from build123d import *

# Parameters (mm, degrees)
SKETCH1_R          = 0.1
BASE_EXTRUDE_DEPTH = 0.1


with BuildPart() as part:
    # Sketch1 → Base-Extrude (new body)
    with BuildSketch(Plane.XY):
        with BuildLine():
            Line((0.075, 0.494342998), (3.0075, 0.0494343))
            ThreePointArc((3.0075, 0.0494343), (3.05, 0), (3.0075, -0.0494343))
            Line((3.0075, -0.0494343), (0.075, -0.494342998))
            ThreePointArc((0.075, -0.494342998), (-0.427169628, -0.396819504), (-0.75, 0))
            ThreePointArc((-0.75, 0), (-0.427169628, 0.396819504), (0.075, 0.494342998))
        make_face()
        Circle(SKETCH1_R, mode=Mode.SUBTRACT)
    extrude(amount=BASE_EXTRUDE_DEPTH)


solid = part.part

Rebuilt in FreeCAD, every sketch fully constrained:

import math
import FreeCAD as App
import Part
import Sketcher

V = App.Vector

doc = App.newDocument("Part")
body = doc.addObject("PartDesign::Body", "Body")

sketch1 = body.newObject("Sketcher::SketchObject", "Sketch")
sketch1.AttachmentSupport = (doc.getObject("XY_Plane"), [""])
sketch1.MapMode = "FlatFace"
sketch1.addGeometry(Part.LineSegment(V(3.0075, 0.049434, 0), V(0.075, 0.494343, 0)), False)
sketch1.addGeometry(Part.ArcOfCircle(Part.Circle(V(-0.041675, -0.246526, 0), V(0, 0, 1), 0.75), math.radians(81.050369), math.radians(160.81002)), False)
sketch1.addGeometry(Part.ArcOfCircle(Part.Circle(V(-0.041675, 0.246526, 0), V(0, 0, 1), 0.75), math.radians(-160.81002), math.radians(-81.050369)), False)
sketch1.addGeometry(Part.LineSegment(V(0.075, -0.494343, 0), V(3.0075, -0.049434, 0)), False)
sketch1.addGeometry(Part.ArcOfCircle(Part.Circle(V(3, 0, 0), V(0, 0, 1), 0.05), math.radians(-81.373073), math.radians(81.373073)), False)
sketch1.addGeometry(Part.Circle(V(0, 0, 0), V(0, 0, 1), 0.1), False)
sketch1.addConstraint(Sketcher.Constraint("Coincident", 0, 2, 1, 1))
sketch1.addConstraint(Sketcher.Constraint("Coincident", 1, 2, 2, 1))
sketch1.addConstraint(Sketcher.Constraint("Coincident", 2, 2, 3, 1))
sketch1.addConstraint(Sketcher.Constraint("Tangent", 3, 2, 4, 1))
sketch1.addConstraint(Sketcher.Constraint("Tangent", 4, 2, 0, 1))
sketch1.addConstraint(Sketcher.Constraint("Coincident", 5, 3, -1, 1))
sketch1.addConstraint(Sketcher.Constraint("Equal", 1, 2))
sketch1.addConstraint(Sketcher.Constraint("Symmetric", 1, 3, 2, 3, -1))
sketch1.addConstraint(Sketcher.Constraint("Symmetric", 3, 2, 4, 2, -1))
sketch1.addConstraint(Sketcher.Constraint("Diameter", 5, 0.2))
sketch1.addConstraint(Sketcher.Constraint("Radius", 1, 0.75))
sketch1.addConstraint(Sketcher.Constraint("Radius", 4, 0.05))
sketch1.addConstraint(Sketcher.Constraint("DistanceX", -1, 1, 4, 3, 3.0))
sketch1.addConstraint(Sketcher.Constraint("DistanceX", 1, 2, -1, 1, 0.75))
sketch1.addConstraint(Sketcher.Constraint("DistanceX", -1, 1, 0, 2, 0.075))
sketch1.addConstraint(Sketcher.Constraint("DistanceX", -1, 1, 3, 2, 3.0075))
pad1 = body.newObject("PartDesign::Pad", "Pad")
pad1.Profile = sketch1
pad1.Length = 0.1

doc.recompute()
